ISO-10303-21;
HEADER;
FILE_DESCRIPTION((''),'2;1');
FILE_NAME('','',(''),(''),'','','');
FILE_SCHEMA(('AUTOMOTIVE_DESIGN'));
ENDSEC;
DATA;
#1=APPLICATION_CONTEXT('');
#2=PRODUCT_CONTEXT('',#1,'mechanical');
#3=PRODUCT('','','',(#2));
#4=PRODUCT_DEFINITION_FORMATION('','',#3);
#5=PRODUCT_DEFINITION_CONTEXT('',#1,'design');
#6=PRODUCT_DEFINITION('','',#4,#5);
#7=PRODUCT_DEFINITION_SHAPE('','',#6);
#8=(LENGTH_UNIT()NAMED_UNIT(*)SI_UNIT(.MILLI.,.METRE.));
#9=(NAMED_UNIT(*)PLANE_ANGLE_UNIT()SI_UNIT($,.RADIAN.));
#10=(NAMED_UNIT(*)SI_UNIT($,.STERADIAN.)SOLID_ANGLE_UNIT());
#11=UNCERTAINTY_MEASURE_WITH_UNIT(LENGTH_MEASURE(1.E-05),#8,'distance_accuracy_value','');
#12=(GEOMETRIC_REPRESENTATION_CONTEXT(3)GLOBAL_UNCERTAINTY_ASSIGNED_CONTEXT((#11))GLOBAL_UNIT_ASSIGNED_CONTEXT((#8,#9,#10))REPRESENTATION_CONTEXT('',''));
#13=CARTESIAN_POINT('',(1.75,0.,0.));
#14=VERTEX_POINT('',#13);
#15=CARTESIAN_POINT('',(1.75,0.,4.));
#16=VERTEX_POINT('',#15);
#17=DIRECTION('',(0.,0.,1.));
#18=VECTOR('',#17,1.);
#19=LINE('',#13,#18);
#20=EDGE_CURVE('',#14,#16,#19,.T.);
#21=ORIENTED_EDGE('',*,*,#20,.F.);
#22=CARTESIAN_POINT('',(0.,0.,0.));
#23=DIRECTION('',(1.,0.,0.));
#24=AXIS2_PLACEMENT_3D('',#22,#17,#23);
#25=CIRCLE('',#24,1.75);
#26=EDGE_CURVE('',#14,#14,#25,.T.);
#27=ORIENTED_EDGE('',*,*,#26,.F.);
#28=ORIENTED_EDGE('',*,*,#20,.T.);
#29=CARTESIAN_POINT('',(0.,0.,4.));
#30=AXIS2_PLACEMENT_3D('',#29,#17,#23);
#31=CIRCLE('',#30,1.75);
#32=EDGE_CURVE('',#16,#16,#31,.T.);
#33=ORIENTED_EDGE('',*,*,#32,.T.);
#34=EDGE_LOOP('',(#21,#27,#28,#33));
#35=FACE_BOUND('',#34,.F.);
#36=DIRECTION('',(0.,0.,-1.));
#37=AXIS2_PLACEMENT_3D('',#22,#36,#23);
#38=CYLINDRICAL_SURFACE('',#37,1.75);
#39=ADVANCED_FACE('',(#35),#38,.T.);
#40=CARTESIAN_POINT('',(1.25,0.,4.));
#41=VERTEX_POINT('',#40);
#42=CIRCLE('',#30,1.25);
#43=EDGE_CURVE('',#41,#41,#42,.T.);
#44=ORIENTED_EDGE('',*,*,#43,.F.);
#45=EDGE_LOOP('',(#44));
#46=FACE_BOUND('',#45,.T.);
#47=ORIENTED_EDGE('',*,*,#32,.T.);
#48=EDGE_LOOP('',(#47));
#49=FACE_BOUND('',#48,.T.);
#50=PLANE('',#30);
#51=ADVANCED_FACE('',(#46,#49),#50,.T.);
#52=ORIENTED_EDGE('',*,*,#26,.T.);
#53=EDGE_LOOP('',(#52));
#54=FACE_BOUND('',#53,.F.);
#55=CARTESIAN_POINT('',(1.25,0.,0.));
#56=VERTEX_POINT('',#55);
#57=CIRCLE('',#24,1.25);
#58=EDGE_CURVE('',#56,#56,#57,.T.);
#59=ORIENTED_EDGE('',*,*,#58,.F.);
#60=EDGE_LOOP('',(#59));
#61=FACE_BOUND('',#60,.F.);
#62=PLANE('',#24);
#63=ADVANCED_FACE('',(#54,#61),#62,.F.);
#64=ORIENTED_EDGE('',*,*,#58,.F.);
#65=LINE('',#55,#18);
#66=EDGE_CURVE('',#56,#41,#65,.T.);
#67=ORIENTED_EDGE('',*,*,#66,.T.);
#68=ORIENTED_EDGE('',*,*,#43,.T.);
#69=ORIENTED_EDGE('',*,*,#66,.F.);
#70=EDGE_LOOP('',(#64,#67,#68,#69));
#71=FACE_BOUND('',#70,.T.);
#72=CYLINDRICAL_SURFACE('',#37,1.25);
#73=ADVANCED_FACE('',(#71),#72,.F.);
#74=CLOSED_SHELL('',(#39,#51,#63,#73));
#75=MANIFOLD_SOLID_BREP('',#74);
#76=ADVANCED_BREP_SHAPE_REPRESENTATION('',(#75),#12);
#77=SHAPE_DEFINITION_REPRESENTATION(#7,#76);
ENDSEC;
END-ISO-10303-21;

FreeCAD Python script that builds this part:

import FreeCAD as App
import Part
import Sketcher
from FreeCAD import Vector
Q = App.Units.Quantity

doc = App.newDocument("Part")
body = doc.addObject("PartDesign::Body", "Body")

sketch1 = doc.addObject("Sketcher::SketchObject", "Sketch")
body.addObject(sketch1)
sketch1.AttachmentSupport = (doc.XY_Plane, [""])
sketch1.MapMode = "FlatFace"
sketch1.addGeometry([
    Part.Circle(Vector(0, 0, 0), Vector(0, 0, 1), 1.8),
    Part.Circle(Vector(0, 0, 0), Vector(0, 0, 1), 1.2),
], False)
sketch1.addConstraint([
    Sketcher.Constraint("Coincident", 0, 3, -1, 1),
    Sketcher.Constraint("Coincident", 1, 3, -1, 1),
    Sketcher.Constraint("Diameter", 0, Q("3.5 mm")),
    Sketcher.Constraint("Diameter", 1, Q("2.5 mm")),
])
pad1 = doc.addObject("PartDesign::Pad", "Pad")
body.addObject(pad1)
pad1.Profile = sketch1
pad1.Length = 4

doc.recompute()
